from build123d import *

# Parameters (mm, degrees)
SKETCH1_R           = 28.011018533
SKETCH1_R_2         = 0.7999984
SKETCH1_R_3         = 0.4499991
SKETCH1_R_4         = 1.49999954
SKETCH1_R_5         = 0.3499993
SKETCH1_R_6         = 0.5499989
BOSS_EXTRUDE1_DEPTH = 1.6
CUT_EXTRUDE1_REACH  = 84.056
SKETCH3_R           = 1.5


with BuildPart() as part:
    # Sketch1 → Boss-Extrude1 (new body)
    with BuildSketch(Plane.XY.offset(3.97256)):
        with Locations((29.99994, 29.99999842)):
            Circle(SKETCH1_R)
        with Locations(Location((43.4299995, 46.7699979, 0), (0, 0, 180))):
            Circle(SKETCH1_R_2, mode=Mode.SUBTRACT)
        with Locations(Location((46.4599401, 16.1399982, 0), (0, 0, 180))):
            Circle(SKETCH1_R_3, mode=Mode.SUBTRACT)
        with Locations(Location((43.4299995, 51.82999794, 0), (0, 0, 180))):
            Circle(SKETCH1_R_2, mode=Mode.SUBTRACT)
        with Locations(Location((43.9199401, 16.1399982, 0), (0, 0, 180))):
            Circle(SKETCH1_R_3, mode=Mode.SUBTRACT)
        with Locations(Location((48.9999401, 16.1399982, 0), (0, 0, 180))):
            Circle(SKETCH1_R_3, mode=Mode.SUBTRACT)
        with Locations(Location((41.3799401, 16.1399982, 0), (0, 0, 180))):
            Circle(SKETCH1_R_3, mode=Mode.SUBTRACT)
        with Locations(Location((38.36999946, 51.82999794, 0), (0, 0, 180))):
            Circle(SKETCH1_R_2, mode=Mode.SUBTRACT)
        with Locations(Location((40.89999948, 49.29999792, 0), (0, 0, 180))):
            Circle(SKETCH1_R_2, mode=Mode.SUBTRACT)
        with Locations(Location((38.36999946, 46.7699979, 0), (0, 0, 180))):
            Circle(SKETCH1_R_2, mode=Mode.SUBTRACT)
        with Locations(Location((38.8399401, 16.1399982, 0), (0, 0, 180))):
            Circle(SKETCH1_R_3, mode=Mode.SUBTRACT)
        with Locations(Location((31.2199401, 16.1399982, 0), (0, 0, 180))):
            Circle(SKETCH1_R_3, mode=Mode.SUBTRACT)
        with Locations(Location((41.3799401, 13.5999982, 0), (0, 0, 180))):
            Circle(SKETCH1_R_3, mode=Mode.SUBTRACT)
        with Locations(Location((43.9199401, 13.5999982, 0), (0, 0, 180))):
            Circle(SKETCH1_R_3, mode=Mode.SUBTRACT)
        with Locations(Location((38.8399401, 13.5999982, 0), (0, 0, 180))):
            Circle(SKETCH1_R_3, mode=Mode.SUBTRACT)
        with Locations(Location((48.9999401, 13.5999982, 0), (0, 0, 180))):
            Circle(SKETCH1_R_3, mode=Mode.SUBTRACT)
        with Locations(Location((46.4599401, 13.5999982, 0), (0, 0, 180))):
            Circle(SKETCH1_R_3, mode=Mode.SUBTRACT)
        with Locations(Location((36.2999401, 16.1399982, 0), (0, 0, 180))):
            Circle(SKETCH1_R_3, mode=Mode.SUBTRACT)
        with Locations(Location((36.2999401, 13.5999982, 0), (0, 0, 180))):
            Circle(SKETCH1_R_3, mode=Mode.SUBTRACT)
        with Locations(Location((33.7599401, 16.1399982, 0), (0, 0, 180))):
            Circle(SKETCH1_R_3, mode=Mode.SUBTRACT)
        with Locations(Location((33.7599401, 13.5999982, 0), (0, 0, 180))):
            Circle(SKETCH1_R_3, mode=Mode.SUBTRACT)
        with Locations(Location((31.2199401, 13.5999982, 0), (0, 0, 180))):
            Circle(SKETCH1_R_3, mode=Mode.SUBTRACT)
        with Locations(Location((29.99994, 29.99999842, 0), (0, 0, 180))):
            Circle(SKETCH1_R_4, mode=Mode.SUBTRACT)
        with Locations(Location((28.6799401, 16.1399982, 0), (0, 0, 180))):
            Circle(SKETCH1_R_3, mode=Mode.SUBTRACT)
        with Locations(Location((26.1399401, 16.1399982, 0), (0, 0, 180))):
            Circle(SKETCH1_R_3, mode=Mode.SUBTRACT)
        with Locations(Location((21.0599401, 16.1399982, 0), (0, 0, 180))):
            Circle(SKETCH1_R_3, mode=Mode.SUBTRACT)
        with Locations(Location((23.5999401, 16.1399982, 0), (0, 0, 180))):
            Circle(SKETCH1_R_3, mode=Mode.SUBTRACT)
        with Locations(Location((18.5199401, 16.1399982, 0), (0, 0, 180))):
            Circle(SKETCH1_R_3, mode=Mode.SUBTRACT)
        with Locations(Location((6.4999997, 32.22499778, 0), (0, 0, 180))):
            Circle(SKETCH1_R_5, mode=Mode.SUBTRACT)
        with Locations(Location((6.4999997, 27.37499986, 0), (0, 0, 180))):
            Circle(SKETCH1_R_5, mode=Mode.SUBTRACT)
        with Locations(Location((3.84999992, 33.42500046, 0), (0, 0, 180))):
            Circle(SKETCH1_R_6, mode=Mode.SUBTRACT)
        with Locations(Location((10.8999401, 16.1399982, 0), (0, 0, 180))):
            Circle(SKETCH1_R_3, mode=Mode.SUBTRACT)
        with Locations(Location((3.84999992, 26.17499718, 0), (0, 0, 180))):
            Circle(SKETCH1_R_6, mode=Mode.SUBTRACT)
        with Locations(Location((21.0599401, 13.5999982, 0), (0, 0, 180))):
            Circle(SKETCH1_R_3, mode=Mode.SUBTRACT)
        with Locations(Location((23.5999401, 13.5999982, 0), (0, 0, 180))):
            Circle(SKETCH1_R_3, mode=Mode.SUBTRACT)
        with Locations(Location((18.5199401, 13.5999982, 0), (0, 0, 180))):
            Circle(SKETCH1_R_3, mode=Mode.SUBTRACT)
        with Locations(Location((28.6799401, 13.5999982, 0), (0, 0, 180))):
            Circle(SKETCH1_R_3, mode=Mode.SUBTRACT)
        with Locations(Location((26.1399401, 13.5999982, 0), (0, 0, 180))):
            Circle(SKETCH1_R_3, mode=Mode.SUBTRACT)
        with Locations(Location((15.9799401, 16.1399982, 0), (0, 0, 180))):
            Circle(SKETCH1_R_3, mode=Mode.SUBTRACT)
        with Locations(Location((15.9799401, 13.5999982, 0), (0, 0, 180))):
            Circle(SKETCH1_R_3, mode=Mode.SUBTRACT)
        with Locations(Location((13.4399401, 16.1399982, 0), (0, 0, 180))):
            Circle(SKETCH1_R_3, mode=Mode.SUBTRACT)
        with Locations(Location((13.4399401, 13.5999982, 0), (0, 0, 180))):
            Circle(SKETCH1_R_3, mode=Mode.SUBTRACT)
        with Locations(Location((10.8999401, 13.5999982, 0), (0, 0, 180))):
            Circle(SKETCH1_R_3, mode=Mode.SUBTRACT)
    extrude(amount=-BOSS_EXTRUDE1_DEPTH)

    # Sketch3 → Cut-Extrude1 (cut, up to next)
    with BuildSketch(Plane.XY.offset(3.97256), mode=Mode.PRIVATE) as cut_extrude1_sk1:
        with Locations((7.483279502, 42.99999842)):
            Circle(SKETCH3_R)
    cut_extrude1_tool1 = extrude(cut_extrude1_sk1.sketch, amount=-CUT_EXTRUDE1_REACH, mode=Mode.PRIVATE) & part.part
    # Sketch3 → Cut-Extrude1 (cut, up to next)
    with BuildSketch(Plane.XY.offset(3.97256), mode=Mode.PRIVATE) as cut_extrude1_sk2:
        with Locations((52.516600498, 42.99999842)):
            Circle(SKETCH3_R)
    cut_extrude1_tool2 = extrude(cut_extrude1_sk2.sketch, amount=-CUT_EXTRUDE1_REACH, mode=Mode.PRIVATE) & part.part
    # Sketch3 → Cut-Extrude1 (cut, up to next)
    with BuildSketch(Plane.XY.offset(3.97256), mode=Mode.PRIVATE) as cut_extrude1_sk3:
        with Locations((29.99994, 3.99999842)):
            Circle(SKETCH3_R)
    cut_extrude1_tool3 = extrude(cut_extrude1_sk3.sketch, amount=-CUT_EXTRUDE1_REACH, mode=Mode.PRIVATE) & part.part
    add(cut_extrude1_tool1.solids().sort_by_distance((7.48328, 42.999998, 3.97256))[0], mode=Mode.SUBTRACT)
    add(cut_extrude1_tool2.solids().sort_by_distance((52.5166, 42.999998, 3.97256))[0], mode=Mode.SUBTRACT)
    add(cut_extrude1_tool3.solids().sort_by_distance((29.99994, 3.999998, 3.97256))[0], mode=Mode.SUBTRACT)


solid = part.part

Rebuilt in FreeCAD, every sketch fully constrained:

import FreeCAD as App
import Part
import Sketcher
from FreeCAD import Vector
Q = App.Units.Quantity

doc = App.newDocument("Part")
params = doc.addObject("Spreadsheet::Sheet", "Params")
for row, (alias, value) in enumerate([
    ("sketch1_diameter", "2.999999 mm"),
    ("sketch1_diameter2", "0.899998 mm"),
    ("sketch1_diameter3", "0.699999 mm"),
    ("pad1_length", "1.6 mm"),
    ("sketch2_diameter", "3 mm"),
    ("sketch3_diameter", "3 mm"),
    ("sketch4_diameter", "3 mm"),
], start=1):
    params.set(f"A{row}", alias)
    params.set(f"B{row}", "=" + value)
    params.setAlias(f"B{row}", alias)

body = doc.addObject("PartDesign::Body", "Body")

sketch1 = doc.addObject("Sketcher::SketchObject", "Sketch")
body.addObject(sketch1)
sketch1.AttachmentSupport = (doc.XY_Plane, [""])
sketch1.MapMode = "FlatFace"
sketch1.AttachmentOffset = App.Placement(Vector(0, 0, 3.97256), App.Rotation())
sketch1.addGeometry([
    Part.Circle(Vector(30, 30, 0), Vector(0, 0, 1), 28.01),
    Part.Circle(Vector(10.9, 13.6, 0), Vector(0, 0, 1), 0.45),
    Part.Circle(Vector(13.44, 13.6, 0), Vector(0, 0, 1), 0.45),
    Part.Circle(Vector(10.9, 16.14, 0), Vector(0, 0, 1), 0.45),
    Part.Circle(Vector(13.44, 16.14, 0), Vector(0, 0, 1), 0.45),
    Part.Circle(Vector(15.98, 13.6, 0), Vector(0, 0, 1), 0.45),
    Part.Circle(Vector(18.52, 13.6, 0), Vector(0, 0, 1), 0.45),
    Part.Circle(Vector(15.98, 16.14, 0), Vector(0, 0, 1), 0.45),
    Part.Circle(Vector(18.52, 16.14, 0), Vector(0, 0, 1), 0.45),
    Part.Circle(Vector(21.06, 13.6, 0), Vector(0, 0, 1), 0.45),
    Part.Circle(Vector(23.6, 13.6, 0), Vector(0, 0, 1), 0.45),
    Part.Circle(Vector(26.14, 13.6, 0), Vector(0, 0, 1), 0.45),
    Part.Circle(Vector(21.06, 16.14, 0), Vector(0, 0, 1), 0.45),
    Part.Circle(Vector(23.6, 16.14, 0), Vector(0, 0, 1), 0.45),
    Part.Circle(Vector(26.14, 16.14, 0), Vector(0, 0, 1), 0.45),
    Part.Circle(Vector(3.85, 26.17, 0), Vector(0, 0, 1), 0.55),
    Part.Circle(Vector(6.5, 27.37, 0), Vector(0, 0, 1), 0.35),
    Part.Circle(Vector(6.5, 32.22, 0), Vector(0, 0, 1), 0.35),
    Part.Circle(Vector(28.68, 13.6, 0), Vector(0, 0, 1), 0.45),
    Part.Circle(Vector(31.22, 13.6, 0), Vector(0, 0, 1), 0.45),
    Part.Circle(Vector(28.68, 16.14, 0), Vector(0, 0, 1), 0.45),
    Part.Circle(Vector(31.22, 16.14, 0), Vector(0, 0, 1), 0.45),
    Part.Circle(Vector(33.76, 13.6, 0), Vector(0, 0, 1), 0.45),
    Part.Circle(Vector(36.3, 13.6, 0), Vector(0, 0, 1), 0.45),
    Part.Circle(Vector(33.76, 16.14, 0), Vector(0, 0, 1), 0.45),
    Part.Circle(Vector(36.3, 16.14, 0), Vector(0, 0, 1), 0.45),
    Part.Circle(Vector(38.84, 13.6, 0), Vector(0, 0, 1), 0.45),
    Part.Circle(Vector(41.38, 13.6, 0), Vector(0, 0, 1), 0.45),
    Part.Circle(Vector(38.84, 16.14, 0), Vector(0, 0, 1), 0.45),
    Part.Circle(Vector(41.38, 16.14, 0), Vector(0, 0, 1), 0.45),
    Part.Circle(Vector(43.92, 13.6, 0), Vector(0, 0, 1), 0.45),
    Part.Circle(Vector(46.46, 13.6, 0), Vector(0, 0, 1), 0.45),
    Part.Circle(Vector(49, 13.6, 0), Vector(0, 0, 1), 0.45),
    Part.Circle(Vector(43.92, 16.14, 0), Vector(0, 0, 1), 0.45),
    Part.Circle(Vector(46.46, 16.14, 0), Vector(0, 0, 1), 0.45),
    Part.Circle(Vector(49, 16.14, 0), Vector(0, 0, 1), 0.45),
    Part.Circle(Vector(30, 30, 0), Vector(0, 0, 1), 1.5),
    Part.Circle(Vector(3.85, 33.43, 0), Vector(0, 0, 1), 0.55),
    Part.Circle(Vector(38.37, 46.77, 0), Vector(0, 0, 1), 0.8),
    Part.Circle(Vector(43.43, 46.77, 0), Vector(0, 0, 1), 0.8),
    Part.Circle(Vector(40.9, 49.3, 0), Vector(0, 0, 1), 0.8),
    Part.Circle(Vector(38.37, 51.83, 0), Vector(0, 0, 1), 0.8),
    Part.Circle(Vector(43.43, 51.83, 0), Vector(0, 0, 1), 0.8),
], False)
sketch1.addConstraint([
    Sketcher.Constraint("Coincident", 36, 3, 0, 3),
    Sketcher.Constraint("Equal", 1, 2),
    Sketcher.Constraint("Equal", 2, 3),
    Sketcher.Constraint("Equal", 3, 4),
    Sketcher.Constraint("Equal", 4, 5),
    Sketcher.Constraint("Equal", 5, 6),
    Sketcher.Constraint("Equal", 6, 7),
    Sketcher.Constraint("Equal", 7, 8),
    Sketcher.Constraint("Equal", 8, 9),
    Sketcher.Constraint("Equal", 9, 10),
    Sketcher.Constraint("Equal", 10, 11),
    Sketcher.Constraint("Equal", 11, 12),
    Sketcher.Constraint("Equal", 12, 13),
    Sketcher.Constraint("Equal", 13, 14),
    Sketcher.Constraint("Equal", 16, 17),
    Sketcher.Constraint("Equal", 14, 18),
    Sketcher.Constraint("Equal", 18, 19),
    Sketcher.Constraint("Equal", 19, 20),
    Sketcher.Constraint("Equal", 20, 21),
    Sketcher.Constraint("Equal", 21, 22),
    Sketcher.Constraint("Equal", 22, 23),
    Sketcher.Constraint("Equal", 23, 24),
    Sketcher.Constraint("Equal", 24, 25),
    Sketcher.Constraint("Equal", 25, 26),
    Sketcher.Constraint("Equal", 26, 27),
    Sketcher.Constraint("Equal", 27, 28),
    Sketcher.Constraint("Equal", 28, 29),
    Sketcher.Constraint("Equal", 29, 30),
    Sketcher.Constraint("Equal", 30, 31),
    Sketcher.Constraint("Equal", 31, 32),
    Sketcher.Constraint("Equal", 32, 33),
    Sketcher.Constraint("Equal", 33, 34),
    Sketcher.Constraint("Equal", 34, 35),
    Sketcher.Constraint("Equal", 15, 37),
    Sketcher.Constraint("Equal", 38, 39),
    Sketcher.Constraint("Equal", 39, 40),
    Sketcher.Constraint("Equal", 40, 41),
    Sketcher.Constraint("Equal", 41, 42),
    Sketcher.Constraint("Horizontal", 1, 3, 2, 3),
    Sketcher.Constraint("Horizontal", 3, 3, 4, 3),
    Sketcher.Constraint("Horizontal", 2, 3, 5, 3),
    Sketcher.Constraint("Horizontal", 5, 3, 6, 3),
    Sketcher.Constraint("Horizontal", 4, 3, 7, 3),
    Sketcher.Constraint("Horizontal", 7, 3, 8, 3),
    Sketcher.Constraint("Horizontal", 6, 3, 9, 3),
    Sketcher.Constraint("Horizontal", 9, 3, 10, 3),
    Sketcher.Constraint("Horizontal", 10, 3, 11, 3),
    Sketcher.Constraint("Horizontal", 8, 3, 12, 3),
    Sketcher.Constraint("Horizontal", 12, 3, 13, 3),
    Sketcher.Constraint("Horizontal", 13, 3, 14, 3),
    Sketcher.Constraint("Horizontal", 11, 3, 18, 3),
    Sketcher.Constraint("Horizontal", 18, 3, 19, 3),
    Sketcher.Constraint("Horizontal", 14, 3, 20, 3),
    Sketcher.Constraint("Horizontal", 20, 3, 21, 3),
    Sketcher.Constraint("Horizontal", 19, 3, 22, 3),
    Sketcher.Constraint("Horizontal", 22, 3, 23, 3),
    Sketcher.Constraint("Horizontal", 21, 3, 24, 3),
    Sketcher.Constraint("Horizontal", 24, 3, 25, 3),
    Sketcher.Constraint("Horizontal", 23, 3, 26, 3),
    Sketcher.Constraint("Horizontal", 26, 3, 27, 3),
    Sketcher.Constraint("Horizontal", 25, 3, 28, 3),
    Sketcher.Constraint("Horizontal", 28, 3, 29, 3),
    Sketcher.Constraint("Horizontal", 27, 3, 30, 3),
    Sketcher.Constraint("Horizontal", 30, 3, 31, 3),
    Sketcher.Constraint("Horizontal", 31, 3, 32, 3),
    Sketcher.Constraint("Horizontal", 29, 3, 33, 3),
    Sketcher.Constraint("Horizontal", 33, 3, 34, 3),
    Sketcher.Constraint("Horizontal", 34, 3, 35, 3),
    Sketcher.Constraint("Horizontal", 38, 3, 39, 3),
    Sketcher.Constraint("Horizontal", 41, 3, 42, 3),
    Sketcher.Constraint("Vertical", 1, 3, 3, 3),
    Sketcher.Constraint("Vertical", 2, 3, 4, 3),
    Sketcher.Constraint("Vertical", 5, 3, 7, 3),
    Sketcher.Constraint("Vertical", 6, 3, 8, 3),
    Sketcher.Constraint("Vertical", 9, 3, 12, 3),
    Sketcher.Constraint("Vertical", 10, 3, 13, 3),
    Sketcher.Constraint("Vertical", 11, 3, 14, 3),
    Sketcher.Constraint("Vertical", 16, 3, 17, 3),
    Sketcher.Constraint("Vertical", 18, 3, 20, 3),
    Sketcher.Constraint("Vertical", 19, 3, 21, 3),
    Sketcher.Constraint("Vertical", 22, 3, 24, 3),
    Sketcher.Constraint("Vertical", 23, 3, 25, 3),
    Sketcher.Constraint("Vertical", 26, 3, 28, 3),
    Sketcher.Constraint("Vertical", 27, 3, 29, 3),
    Sketcher.Constraint("Vertical", 30, 3, 33, 3),
    Sketcher.Constraint("Vertical", 31, 3, 34, 3),
    Sketcher.Constraint("Vertical", 32, 3, 35, 3),
    Sketcher.Constraint("Vertical", 15, 3, 37, 3),
    Sketcher.Constraint("Vertical", 38, 3, 41, 3),
    Sketcher.Constraint("Vertical", 39, 3, 42, 3),
    Sketcher.Constraint("Diameter", 36, Q("2.999999 mm")),
    Sketcher.Constraint("Diameter", 1, Q("0.899998 mm")),
    Sketcher.Constraint("Diameter", 16, Q("0.699999 mm")),
    Sketcher.Constraint("DistanceY", -1, 1, 0, 3, Q("29.999998 mm")),
    Sketcher.Constraint("DistanceY", -1, 1, 1, 3, Q("13.599998 mm")),
    Sketcher.Constraint("DistanceX", -1, 1, 16, 3, Q("6.5 mm")),
    Sketcher.Constraint("DistanceX", -1, 1, 40, 3, Q("40.899999 mm")),
    Sketcher.Constraint("DistanceX", 1, 3, 0, 3, Q("19.1 mm")),
    Sketcher.Constraint("DistanceY", 0, 3, 40, 3, Q("19.3 mm")),
    Sketcher.Constraint("DistanceY", -1, 1, 3, 3, Q("16.139998 mm")),
    Sketcher.Constraint("DistanceX", -1, 1, 15, 3, Q("3.85 mm")),
    Sketcher.Constraint("DistanceX", -1, 1, 38, 3, Q("38.369999 mm")),
    Sketcher.Constraint("DistanceX", -1, 1, 39, 3, Q("43.43 mm")),
    Sketcher.Constraint("DistanceX", 1, 3, 2, 3, Q("2.54 mm")),
    Sketcher.Constraint("DistanceX", 2, 3, 5, 3, Q("2.54 mm")),
    Sketcher.Constraint("DistanceX", 5, 3, 6, 3, Q("2.54 mm")),
    Sketcher.Constraint("DistanceX", 6, 3, 9, 3, Q("2.54 mm")),
    Sketcher.Constraint("DistanceX", 9, 3, 10, 3, Q("2.54 mm")),
    Sketcher.Constraint("DistanceX", 10, 3, 11, 3, Q("2.54 mm")),
    Sketcher.Constraint("DistanceY", 15, 3, 17, 3, Q("6.050001 mm")),
    Sketcher.Constraint("DistanceX", 11, 3, 18, 3, Q("2.54 mm")),
    Sketcher.Constraint("DistanceX", 18, 3, 19, 3, Q("2.54 mm")),
    Sketcher.Constraint("DistanceX", 19, 3, 22, 3, Q("2.54 mm")),
    Sketcher.Constraint("DistanceX", 22, 3, 23, 3, Q("2.54 mm")),
    Sketcher.Constraint("DistanceX", 23, 3, 26, 3, Q("2.54 mm")),
    Sketcher.Constraint("DistanceX", 26, 3, 27, 3, Q("2.54 mm")),
    Sketcher.Constraint("DistanceX", 27, 3, 30, 3, Q("2.54 mm")),
    Sketcher.Constraint("DistanceX", 30, 3, 31, 3, Q("2.54 mm")),
    Sketcher.Constraint("DistanceX", 31, 3, 32, 3, Q("2.54 mm")),
    Sketcher.Constraint("DistanceY", 16, 3, 37, 3, Q("6.050001 mm")),
    Sketcher.Constraint("DistanceY", 0, 3, 38, 3, Q("16.769999 mm")),
    Sketcher.Constraint("DistanceY", 40, 3, 41, 3, Q("2.53 mm")),
    Sketcher.Constraint("Diameter", 0, Q("56.022037 mm")),
    Sketcher.Constraint("Diameter", 15, Q("1.099998 mm")),
    Sketcher.Constraint("Diameter", 38, Q("1.599997 mm")),
    Sketcher.Constraint("DistanceY", -1, 1, 16, 3, Q("27.375 mm")),
    Sketcher.Constraint("DistanceY", 3, 3, 15, 3, Q("10.034999 mm")),
    Sketcher.Constraint("DistanceX", -1, 1, 0, 3, Q("29.99994 mm")),
])
sketch1.setExpression("Constraints[90]", "Params.sketch1_diameter")
sketch1.setExpression("Constraints[91]", "Params.sketch1_diameter2")
sketch1.setExpression("Constraints[92]", "Params.sketch1_diameter3")
pad1 = doc.addObject("PartDesign::Pad", "Pad")
body.addObject(pad1)
pad1.Profile = sketch1
pad1.setExpression("Length", "Params.pad1_length")
pad1.Reversed = True

sketch2 = doc.addObject("Sketcher::SketchObject", "Sketch001")
body.addObject(sketch2)
sketch2.AttachmentSupport = (doc.XY_Plane, [""])
sketch2.MapMode = "FlatFace"
sketch2.AttachmentOffset = App.Placement(Vector(0, 0, 3.97256), App.Rotation())
sketch2.addGeometry(Part.Circle(Vector(7.5, 43, 0), Vector(0, 0, 1), 1.5), False)
sketch2.addConstraint([
    Sketcher.Constraint("Diameter", 0, Q("3 mm")),
    Sketcher.Constraint("DistanceY", -1, 1, 0, 3, Q("42.999998 mm")),
    Sketcher.Constraint("DistanceX", -1, 1, 0, 3, Q("7.48328 mm")),
])
sketch2.setExpression("Constraints[0]", "Params.sketch2_diameter")
pocket1 = doc.addObject("PartDesign::Pocket", "Pocket")
body.addObject(pocket1)
pocket1.Profile = sketch2
pocket1.Type = "UpToFirst"

sketch3 = doc.addObject("Sketcher::SketchObject", "Sketch002")
body.addObject(sketch3)
sketch3.AttachmentSupport = (doc.XY_Plane, [""])
sketch3.MapMode = "FlatFace"
sketch3.AttachmentOffset = App.Placement(Vector(0, 0, 3.97256), App.Rotation())
sketch3.addGeometry(Part.Circle(Vector(52.5, 43, 0), Vector(0, 0, 1), 1.5), False)
sketch3.addConstraint([
    Sketcher.Constraint("Diameter", 0, Q("3 mm")),
    Sketcher.Constraint("DistanceY", -1, 1, 0, 3, Q("42.999998 mm")),
    Sketcher.Constraint("DistanceX", -1, 1, 0, 3, Q("52.5166 mm")),
])
sketch3.setExpression("Constraints[0]", "Params.sketch3_diameter")
pocket2 = doc.addObject("PartDesign::Pocket", "Pocket001")
body.addObject(pocket2)
pocket2.Profile = sketch3
pocket2.Type = "UpToFirst"

sketch4 = doc.addObject("Sketcher::SketchObject", "Sketch003")
body.addObject(sketch4)
sketch4.AttachmentSupport = (doc.XY_Plane, [""])
sketch4.MapMode = "FlatFace"
sketch4.AttachmentOffset = App.Placement(Vector(0, 0, 3.97256), App.Rotation())
sketch4.addGeometry(Part.Circle(Vector(30, 4, 0), Vector(0, 0, 1), 1.5), False)
sketch4.addConstraint([
    Sketcher.Constraint("Diameter", 0, Q("3 mm")),
    Sketcher.Constraint("DistanceY", -1, 1, 0, 3, Q("3.999998 mm")),
    Sketcher.Constraint("DistanceX", -1, 1, 0, 3, Q("29.99994 mm")),
])
sketch4.setExpression("Constraints[0]", "Params.sketch4_diameter")
pocket3 = doc.addObject("PartDesign::Pocket", "Pocket002")
body.addObject(pocket3)
pocket3.Profile = sketch4
pocket3.Type = "UpToFirst"

doc.recompute()
